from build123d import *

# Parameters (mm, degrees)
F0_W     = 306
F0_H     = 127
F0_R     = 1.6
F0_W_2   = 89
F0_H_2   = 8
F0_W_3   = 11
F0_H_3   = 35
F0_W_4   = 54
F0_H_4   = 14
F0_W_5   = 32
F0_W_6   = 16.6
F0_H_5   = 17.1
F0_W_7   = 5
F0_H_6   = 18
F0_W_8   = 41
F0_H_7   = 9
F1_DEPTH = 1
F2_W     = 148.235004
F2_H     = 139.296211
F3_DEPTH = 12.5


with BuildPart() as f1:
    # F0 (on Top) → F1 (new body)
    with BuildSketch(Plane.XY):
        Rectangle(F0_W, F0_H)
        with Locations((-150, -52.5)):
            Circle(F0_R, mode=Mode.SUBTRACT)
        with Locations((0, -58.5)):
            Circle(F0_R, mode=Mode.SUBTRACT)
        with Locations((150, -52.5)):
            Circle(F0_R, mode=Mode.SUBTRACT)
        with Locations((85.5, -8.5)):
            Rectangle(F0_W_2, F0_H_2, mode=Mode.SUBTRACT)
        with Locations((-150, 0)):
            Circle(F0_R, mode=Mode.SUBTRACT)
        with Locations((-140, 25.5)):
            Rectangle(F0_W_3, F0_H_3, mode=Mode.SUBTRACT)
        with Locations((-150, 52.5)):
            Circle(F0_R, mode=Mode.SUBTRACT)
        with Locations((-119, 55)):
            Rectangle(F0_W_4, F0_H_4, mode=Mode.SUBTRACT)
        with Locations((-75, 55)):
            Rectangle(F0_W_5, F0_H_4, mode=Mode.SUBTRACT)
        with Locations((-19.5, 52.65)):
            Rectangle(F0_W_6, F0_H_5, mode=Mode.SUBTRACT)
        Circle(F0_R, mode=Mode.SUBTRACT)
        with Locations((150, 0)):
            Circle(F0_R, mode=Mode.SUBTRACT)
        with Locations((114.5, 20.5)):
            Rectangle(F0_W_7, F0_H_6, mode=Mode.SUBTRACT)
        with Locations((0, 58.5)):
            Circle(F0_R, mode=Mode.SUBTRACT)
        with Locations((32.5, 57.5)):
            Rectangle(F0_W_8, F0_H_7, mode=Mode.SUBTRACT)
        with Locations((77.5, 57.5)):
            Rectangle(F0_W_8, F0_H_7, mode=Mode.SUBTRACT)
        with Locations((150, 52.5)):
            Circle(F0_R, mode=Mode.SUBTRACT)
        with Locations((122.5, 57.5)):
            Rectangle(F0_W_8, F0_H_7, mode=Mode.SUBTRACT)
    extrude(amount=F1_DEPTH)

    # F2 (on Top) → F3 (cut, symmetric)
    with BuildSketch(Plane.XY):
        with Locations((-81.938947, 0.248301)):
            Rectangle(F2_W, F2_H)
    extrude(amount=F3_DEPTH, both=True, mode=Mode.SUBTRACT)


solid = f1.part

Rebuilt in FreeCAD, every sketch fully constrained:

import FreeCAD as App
import Part
import Sketcher
from FreeCAD import Vector
Q = App.Units.Quantity


def add_polygon(sketch, points):
    """Adds a closed chain of lines whose ends are joined by coincident constraints."""
    first, n = sketch.GeometryCount, len(points)
    for a, b in zip(points, points[1:] + points[:1]):
        sketch.addGeometry(Part.LineSegment(App.Vector(*a, 0), App.Vector(*b, 0)), False)
    for i in range(n):
        sketch.addConstraint(Sketcher.Constraint("Coincident", first + i, 2, first + (i + 1) % n, 1))

doc = App.newDocument("Part")
body = doc.addObject("PartDesign::Body", "Body")

# Sketch on XY plane
sketch1 = body.newObject("Sketcher::SketchObject", "Sketch")
sketch1.AttachmentSupport = (doc.getObject("XY_Plane"), [""])
sketch1.MapMode = "FlatFace"
add_polygon(sketch1, [(-153, 63.5), (-153, -63.5), (153, -63.5), (153, 63.5)])  # lines 0-3
sketch1.addGeometry(Part.Circle(Vector(-150, -52.5, 0), Vector(0, 0, 1), 1.6), False)  # 4
sketch1.addGeometry(Part.Circle(Vector(-150, 0, 0), Vector(0, 0, 1), 1.6), False)  # 5
sketch1.addGeometry(Part.Circle(Vector(0, -58.5, 0), Vector(0, 0, 1), 1.6), False)  # 6
sketch1.addGeometry(Part.Circle(Vector(150, -52.5, 0), Vector(0, 0, 1), 1.6), False)  # 7
sketch1.addGeometry(Part.Circle(Vector(0, 0, 0), Vector(0, 0, 1), 1.6), False)  # 8
add_polygon(sketch1, [(130, -12.5), (41, -12.5), (41, -4.5), (130, -4.5)])  # lines 9-12
sketch1.addGeometry(Part.Circle(Vector(150, 0, 0), Vector(0, 0, 1), 1.6), False)  # 13
add_polygon(sketch1, [(-134.5, 8), (-145.5, 8), (-145.5, 43), (-134.5, 43)])  # lines 14-17
sketch1.addGeometry(Part.Circle(Vector(-150, 52.5, 0), Vector(0, 0, 1), 1.6), False)  # 18
add_polygon(sketch1, [(-92, 48), (-146, 48), (-146, 62), (-92, 62)])  # lines 19-22
add_polygon(sketch1, [(-59, 48), (-91, 48), (-91, 62), (-59, 62)])  # lines 23-26
add_polygon(sketch1, [(-11.2, 44.1), (-27.8, 44.1), (-27.8, 61.2), (-11.2, 61.2)])  # lines 27-30
add_polygon(sketch1, [(117, 11.5), (112, 11.5), (112, 29.5), (117, 29.5)])  # lines 31-34
sketch1.addGeometry(Part.Circle(Vector(0, 58.5, 0), Vector(0, 0, 1), 1.6), False)  # 35
add_polygon(sketch1, [(53, 53), (12, 53), (12, 62), (53, 62)])  # lines 36-39
add_polygon(sketch1, [(98, 53), (57, 53), (57, 62), (98, 62)])  # lines 40-43
sketch1.addGeometry(Part.Circle(Vector(150, 52.5, 0), Vector(0, 0, 1), 1.6), False)  # 44
add_polygon(sketch1, [(143, 53), (102, 53), (102, 62), (143, 62)])  # lines 45-48
sketch1.addConstraint([
    Sketcher.Constraint("Vertical", 0),
    Sketcher.Constraint("Horizontal", 1),
    Sketcher.Constraint("Vertical", 2),
    Sketcher.Constraint("Horizontal", 3),
    Sketcher.Constraint("Horizontal", 9),
    Sketcher.Constraint("Vertical", 10),
    Sketcher.Constraint("Horizontal", 11),
    Sketcher.Constraint("Vertical", 12),
    Sketcher.Constraint("Horizontal", 14),
    Sketcher.Constraint("Vertical", 15),
    Sketcher.Constraint("Horizontal", 16),
    Sketcher.Constraint("Vertical", 17),
    Sketcher.Constraint("Horizontal", 19),
    Sketcher.Constraint("Vertical", 20),
    Sketcher.Constraint("Horizontal", 21),
    Sketcher.Constraint("Vertical", 22),
    Sketcher.Constraint("Horizontal", 23),
    Sketcher.Constraint("Vertical", 24),
    Sketcher.Constraint("Horizontal", 25),
    Sketcher.Constraint("Vertical", 26),
    Sketcher.Constraint("Horizontal", 27),
    Sketcher.Constraint("Vertical", 28),
    Sketcher.Constraint("Horizontal", 29),
    Sketcher.Constraint("Vertical", 30),
    Sketcher.Constraint("Horizontal", 31),
    Sketcher.Constraint("Vertical", 32),
    Sketcher.Constraint("Horizontal", 33),
    Sketcher.Constraint("Vertical", 34),
    Sketcher.Constraint("Horizontal", 36),
    Sketcher.Constraint("Vertical", 37),
    Sketcher.Constraint("Horizontal", 38),
    Sketcher.Constraint("Vertical", 39),
    Sketcher.Constraint("Horizontal", 40),
    Sketcher.Constraint("Vertical", 41),
    Sketcher.Constraint("Horizontal", 42),
    Sketcher.Constraint("Vertical", 43),
    Sketcher.Constraint("Horizontal", 45),
    Sketcher.Constraint("Vertical", 46),
    Sketcher.Constraint("Horizontal", 47),
    Sketcher.Constraint("Vertical", 48),
    Sketcher.Constraint("Coincident", 8, 3, -1, 1),
    Sketcher.Constraint("Equal", 4, 5),
    Sketcher.Constraint("Equal", 5, 6),
    Sketcher.Constraint("Equal", 6, 7),
    Sketcher.Constraint("Equal", 7, 8),
    Sketcher.Constraint("Equal", 8, 13),
    Sketcher.Constraint("Equal", 13, 18),
    Sketcher.Constraint("Equal", 18, 35),
    Sketcher.Constraint("Equal", 35, 44),
    Sketcher.Constraint("Symmetric", 5, 3, 13, 3, -1, 1),
    Sketcher.Constraint("Symmetric", 7, 3, 18, 3, -1, 1),
    Sketcher.Constraint("Symmetric", 6, 3, 35, 3, -1, 1),
    Sketcher.Constraint("Symmetric", 4, 3, 44, 3, -1, 1),
    Sketcher.Constraint("Symmetric", 0, 2, 2, 2, -1, 1),
    Sketcher.Constraint("Symmetric", 4, 3, 7, 3, -2),
    Sketcher.Constraint("PointOnObject", 5, 3, -1),
    Sketcher.Constraint("PointOnObject", 6, 3, -2),
    Sketcher.Constraint("Horizontal", 22, 2, 23, 2),
    Sketcher.Constraint("Horizontal", 21, 2, 24, 2),
    Sketcher.Constraint("Horizontal", 25, 2, 37, 2),
    Sketcher.Constraint("Horizontal", 39, 2, 40, 2),
    Sketcher.Constraint("Horizontal", 38, 2, 41, 2),
    Sketcher.Constraint("Horizontal", 43, 2, 45, 2),
    Sketcher.Constraint("Horizontal", 42, 2, 46, 2),
    Sketcher.Constraint("Vertical", 4, 3, 5, 3),
    Sketcher.Constraint("Equal", 38, 40),
    Sketcher.Constraint("Equal", 42, 45),
    Sketcher.Constraint("Diameter", 4, Q("3.2 mm")),
    Sketcher.Constraint("DistanceX", 1, 1, 1, 2, Q("306 mm")),
    Sketcher.Constraint("DistanceX", 9, 2, 9, 1, Q("89 mm")),
    Sketcher.Constraint("DistanceX", 14, 2, 14, 1, Q("11 mm")),
    Sketcher.Constraint("DistanceX", 19, 2, 19, 1, Q("54 mm")),
    Sketcher.Constraint("DistanceX", 23, 2, 23, 1, Q("32 mm")),
    Sketcher.Constraint("DistanceX", 31, 2, 31, 1, Q("5 mm")),
    Sketcher.Constraint("DistanceX", 36, 2, 36, 1, Q("41 mm")),
    Sketcher.Constraint("DistanceY", 0, 2, 0, 1, Q("127 mm")),
    Sketcher.Constraint("DistanceY", 10, 1, 10, 2, Q("8 mm")),
    Sketcher.Constraint("DistanceY", 15, 1, 15, 2, Q("35 mm")),
    Sketcher.Constraint("DistanceY", 20, 1, 20, 2, Q("14 mm")),
    Sketcher.Constraint("DistanceY", 32, 1, 32, 2, Q("18 mm")),
    Sketcher.Constraint("DistanceY", 37, 1, 37, 2, Q("9 mm")),
    Sketcher.Constraint("DistanceX", 27, 2, 27, 1, Q("16.6 mm")),
    Sketcher.Constraint("DistanceY", 28, 1, 28, 2, Q("17.1 mm")),
    Sketcher.Constraint("DistanceX", 4, 3, -1, 1, Q("150 mm")),
    Sketcher.Constraint("DistanceX", -1, 1, 9, 2, Q("41 mm")),
    Sketcher.Constraint("DistanceY", -1, 1, 14, 2, Q("8 mm")),
    Sketcher.Constraint("DistanceX", 19, 2, -1, 1, Q("146 mm")),
    Sketcher.Constraint("DistanceY", -1, 1, 19, 2, Q("48 mm")),
    Sketcher.Constraint("DistanceX", 23, 2, -1, 1, Q("91 mm")),
    Sketcher.Constraint("DistanceX", -1, 1, 31, 2, Q("112 mm")),
    Sketcher.Constraint("DistanceX", -1, 1, 36, 2, Q("12 mm")),
    Sketcher.Constraint("DistanceX", -1, 1, 40, 2, Q("57 mm")),
    Sketcher.Constraint("DistanceX", -1, 1, 45, 2, Q("102 mm")),
    Sketcher.Constraint("DistanceY", 6, 3, 4, 3, Q("6 mm")),
    Sketcher.Constraint("DistanceY", 4, 3, 18, 3, Q("105 mm")),
    Sketcher.Constraint("DistanceY", 6, 3, 9, 2, Q("46 mm")),
    Sketcher.Constraint("DistanceY", 11, 2, 31, 2, Q("16 mm")),
    Sketcher.Constraint("DistanceX", 14, 2, -1, 1, Q("145.5 mm")),
    Sketcher.Constraint("DistanceX", 27, 2, -1, 1, Q("27.8 mm")),
    Sketcher.Constraint("DistanceY", -1, 1, 27, 2, Q("44.1 mm")),
])
pad1 = body.newObject("PartDesign::Pad", "Pad")
pad1.Profile = sketch1
pad1.Length = 1

# Sketch on XY plane
sketch2 = body.newObject("Sketcher::SketchObject", "Sketch001")
sketch2.AttachmentSupport = (doc.getObject("XY_Plane"), [""])
sketch2.MapMode = "FlatFace"
add_polygon(sketch2, [(-156, 70), (-156, -69), (-8, -69), (-8, 70)])  # lines 0-3
sketch2.addConstraint([
    Sketcher.Constraint("Vertical", 0),
    Sketcher.Constraint("Horizontal", 1),
    Sketcher.Constraint("Vertical", 2),
    Sketcher.Constraint("Horizontal", 3),
    Sketcher.Constraint("DistanceY", 0, 2, 0, 1, Q("139.296211 mm")),
    Sketcher.Constraint("DistanceX", 1, 1, 1, 2, Q("148.235004 mm")),
    Sketcher.Constraint("DistanceX", 0, 2, -1, 1, Q("156.056449 mm")),
    Sketcher.Constraint("DistanceY", 0, 2, -1, 1, Q("69.399805 mm")),
])
pocket1 = body.newObject("PartDesign::Pocket", "Pocket")
pocket1.Profile = sketch2
pocket1.Length = 25
pocket1.Midplane = True

doc.recompute()
